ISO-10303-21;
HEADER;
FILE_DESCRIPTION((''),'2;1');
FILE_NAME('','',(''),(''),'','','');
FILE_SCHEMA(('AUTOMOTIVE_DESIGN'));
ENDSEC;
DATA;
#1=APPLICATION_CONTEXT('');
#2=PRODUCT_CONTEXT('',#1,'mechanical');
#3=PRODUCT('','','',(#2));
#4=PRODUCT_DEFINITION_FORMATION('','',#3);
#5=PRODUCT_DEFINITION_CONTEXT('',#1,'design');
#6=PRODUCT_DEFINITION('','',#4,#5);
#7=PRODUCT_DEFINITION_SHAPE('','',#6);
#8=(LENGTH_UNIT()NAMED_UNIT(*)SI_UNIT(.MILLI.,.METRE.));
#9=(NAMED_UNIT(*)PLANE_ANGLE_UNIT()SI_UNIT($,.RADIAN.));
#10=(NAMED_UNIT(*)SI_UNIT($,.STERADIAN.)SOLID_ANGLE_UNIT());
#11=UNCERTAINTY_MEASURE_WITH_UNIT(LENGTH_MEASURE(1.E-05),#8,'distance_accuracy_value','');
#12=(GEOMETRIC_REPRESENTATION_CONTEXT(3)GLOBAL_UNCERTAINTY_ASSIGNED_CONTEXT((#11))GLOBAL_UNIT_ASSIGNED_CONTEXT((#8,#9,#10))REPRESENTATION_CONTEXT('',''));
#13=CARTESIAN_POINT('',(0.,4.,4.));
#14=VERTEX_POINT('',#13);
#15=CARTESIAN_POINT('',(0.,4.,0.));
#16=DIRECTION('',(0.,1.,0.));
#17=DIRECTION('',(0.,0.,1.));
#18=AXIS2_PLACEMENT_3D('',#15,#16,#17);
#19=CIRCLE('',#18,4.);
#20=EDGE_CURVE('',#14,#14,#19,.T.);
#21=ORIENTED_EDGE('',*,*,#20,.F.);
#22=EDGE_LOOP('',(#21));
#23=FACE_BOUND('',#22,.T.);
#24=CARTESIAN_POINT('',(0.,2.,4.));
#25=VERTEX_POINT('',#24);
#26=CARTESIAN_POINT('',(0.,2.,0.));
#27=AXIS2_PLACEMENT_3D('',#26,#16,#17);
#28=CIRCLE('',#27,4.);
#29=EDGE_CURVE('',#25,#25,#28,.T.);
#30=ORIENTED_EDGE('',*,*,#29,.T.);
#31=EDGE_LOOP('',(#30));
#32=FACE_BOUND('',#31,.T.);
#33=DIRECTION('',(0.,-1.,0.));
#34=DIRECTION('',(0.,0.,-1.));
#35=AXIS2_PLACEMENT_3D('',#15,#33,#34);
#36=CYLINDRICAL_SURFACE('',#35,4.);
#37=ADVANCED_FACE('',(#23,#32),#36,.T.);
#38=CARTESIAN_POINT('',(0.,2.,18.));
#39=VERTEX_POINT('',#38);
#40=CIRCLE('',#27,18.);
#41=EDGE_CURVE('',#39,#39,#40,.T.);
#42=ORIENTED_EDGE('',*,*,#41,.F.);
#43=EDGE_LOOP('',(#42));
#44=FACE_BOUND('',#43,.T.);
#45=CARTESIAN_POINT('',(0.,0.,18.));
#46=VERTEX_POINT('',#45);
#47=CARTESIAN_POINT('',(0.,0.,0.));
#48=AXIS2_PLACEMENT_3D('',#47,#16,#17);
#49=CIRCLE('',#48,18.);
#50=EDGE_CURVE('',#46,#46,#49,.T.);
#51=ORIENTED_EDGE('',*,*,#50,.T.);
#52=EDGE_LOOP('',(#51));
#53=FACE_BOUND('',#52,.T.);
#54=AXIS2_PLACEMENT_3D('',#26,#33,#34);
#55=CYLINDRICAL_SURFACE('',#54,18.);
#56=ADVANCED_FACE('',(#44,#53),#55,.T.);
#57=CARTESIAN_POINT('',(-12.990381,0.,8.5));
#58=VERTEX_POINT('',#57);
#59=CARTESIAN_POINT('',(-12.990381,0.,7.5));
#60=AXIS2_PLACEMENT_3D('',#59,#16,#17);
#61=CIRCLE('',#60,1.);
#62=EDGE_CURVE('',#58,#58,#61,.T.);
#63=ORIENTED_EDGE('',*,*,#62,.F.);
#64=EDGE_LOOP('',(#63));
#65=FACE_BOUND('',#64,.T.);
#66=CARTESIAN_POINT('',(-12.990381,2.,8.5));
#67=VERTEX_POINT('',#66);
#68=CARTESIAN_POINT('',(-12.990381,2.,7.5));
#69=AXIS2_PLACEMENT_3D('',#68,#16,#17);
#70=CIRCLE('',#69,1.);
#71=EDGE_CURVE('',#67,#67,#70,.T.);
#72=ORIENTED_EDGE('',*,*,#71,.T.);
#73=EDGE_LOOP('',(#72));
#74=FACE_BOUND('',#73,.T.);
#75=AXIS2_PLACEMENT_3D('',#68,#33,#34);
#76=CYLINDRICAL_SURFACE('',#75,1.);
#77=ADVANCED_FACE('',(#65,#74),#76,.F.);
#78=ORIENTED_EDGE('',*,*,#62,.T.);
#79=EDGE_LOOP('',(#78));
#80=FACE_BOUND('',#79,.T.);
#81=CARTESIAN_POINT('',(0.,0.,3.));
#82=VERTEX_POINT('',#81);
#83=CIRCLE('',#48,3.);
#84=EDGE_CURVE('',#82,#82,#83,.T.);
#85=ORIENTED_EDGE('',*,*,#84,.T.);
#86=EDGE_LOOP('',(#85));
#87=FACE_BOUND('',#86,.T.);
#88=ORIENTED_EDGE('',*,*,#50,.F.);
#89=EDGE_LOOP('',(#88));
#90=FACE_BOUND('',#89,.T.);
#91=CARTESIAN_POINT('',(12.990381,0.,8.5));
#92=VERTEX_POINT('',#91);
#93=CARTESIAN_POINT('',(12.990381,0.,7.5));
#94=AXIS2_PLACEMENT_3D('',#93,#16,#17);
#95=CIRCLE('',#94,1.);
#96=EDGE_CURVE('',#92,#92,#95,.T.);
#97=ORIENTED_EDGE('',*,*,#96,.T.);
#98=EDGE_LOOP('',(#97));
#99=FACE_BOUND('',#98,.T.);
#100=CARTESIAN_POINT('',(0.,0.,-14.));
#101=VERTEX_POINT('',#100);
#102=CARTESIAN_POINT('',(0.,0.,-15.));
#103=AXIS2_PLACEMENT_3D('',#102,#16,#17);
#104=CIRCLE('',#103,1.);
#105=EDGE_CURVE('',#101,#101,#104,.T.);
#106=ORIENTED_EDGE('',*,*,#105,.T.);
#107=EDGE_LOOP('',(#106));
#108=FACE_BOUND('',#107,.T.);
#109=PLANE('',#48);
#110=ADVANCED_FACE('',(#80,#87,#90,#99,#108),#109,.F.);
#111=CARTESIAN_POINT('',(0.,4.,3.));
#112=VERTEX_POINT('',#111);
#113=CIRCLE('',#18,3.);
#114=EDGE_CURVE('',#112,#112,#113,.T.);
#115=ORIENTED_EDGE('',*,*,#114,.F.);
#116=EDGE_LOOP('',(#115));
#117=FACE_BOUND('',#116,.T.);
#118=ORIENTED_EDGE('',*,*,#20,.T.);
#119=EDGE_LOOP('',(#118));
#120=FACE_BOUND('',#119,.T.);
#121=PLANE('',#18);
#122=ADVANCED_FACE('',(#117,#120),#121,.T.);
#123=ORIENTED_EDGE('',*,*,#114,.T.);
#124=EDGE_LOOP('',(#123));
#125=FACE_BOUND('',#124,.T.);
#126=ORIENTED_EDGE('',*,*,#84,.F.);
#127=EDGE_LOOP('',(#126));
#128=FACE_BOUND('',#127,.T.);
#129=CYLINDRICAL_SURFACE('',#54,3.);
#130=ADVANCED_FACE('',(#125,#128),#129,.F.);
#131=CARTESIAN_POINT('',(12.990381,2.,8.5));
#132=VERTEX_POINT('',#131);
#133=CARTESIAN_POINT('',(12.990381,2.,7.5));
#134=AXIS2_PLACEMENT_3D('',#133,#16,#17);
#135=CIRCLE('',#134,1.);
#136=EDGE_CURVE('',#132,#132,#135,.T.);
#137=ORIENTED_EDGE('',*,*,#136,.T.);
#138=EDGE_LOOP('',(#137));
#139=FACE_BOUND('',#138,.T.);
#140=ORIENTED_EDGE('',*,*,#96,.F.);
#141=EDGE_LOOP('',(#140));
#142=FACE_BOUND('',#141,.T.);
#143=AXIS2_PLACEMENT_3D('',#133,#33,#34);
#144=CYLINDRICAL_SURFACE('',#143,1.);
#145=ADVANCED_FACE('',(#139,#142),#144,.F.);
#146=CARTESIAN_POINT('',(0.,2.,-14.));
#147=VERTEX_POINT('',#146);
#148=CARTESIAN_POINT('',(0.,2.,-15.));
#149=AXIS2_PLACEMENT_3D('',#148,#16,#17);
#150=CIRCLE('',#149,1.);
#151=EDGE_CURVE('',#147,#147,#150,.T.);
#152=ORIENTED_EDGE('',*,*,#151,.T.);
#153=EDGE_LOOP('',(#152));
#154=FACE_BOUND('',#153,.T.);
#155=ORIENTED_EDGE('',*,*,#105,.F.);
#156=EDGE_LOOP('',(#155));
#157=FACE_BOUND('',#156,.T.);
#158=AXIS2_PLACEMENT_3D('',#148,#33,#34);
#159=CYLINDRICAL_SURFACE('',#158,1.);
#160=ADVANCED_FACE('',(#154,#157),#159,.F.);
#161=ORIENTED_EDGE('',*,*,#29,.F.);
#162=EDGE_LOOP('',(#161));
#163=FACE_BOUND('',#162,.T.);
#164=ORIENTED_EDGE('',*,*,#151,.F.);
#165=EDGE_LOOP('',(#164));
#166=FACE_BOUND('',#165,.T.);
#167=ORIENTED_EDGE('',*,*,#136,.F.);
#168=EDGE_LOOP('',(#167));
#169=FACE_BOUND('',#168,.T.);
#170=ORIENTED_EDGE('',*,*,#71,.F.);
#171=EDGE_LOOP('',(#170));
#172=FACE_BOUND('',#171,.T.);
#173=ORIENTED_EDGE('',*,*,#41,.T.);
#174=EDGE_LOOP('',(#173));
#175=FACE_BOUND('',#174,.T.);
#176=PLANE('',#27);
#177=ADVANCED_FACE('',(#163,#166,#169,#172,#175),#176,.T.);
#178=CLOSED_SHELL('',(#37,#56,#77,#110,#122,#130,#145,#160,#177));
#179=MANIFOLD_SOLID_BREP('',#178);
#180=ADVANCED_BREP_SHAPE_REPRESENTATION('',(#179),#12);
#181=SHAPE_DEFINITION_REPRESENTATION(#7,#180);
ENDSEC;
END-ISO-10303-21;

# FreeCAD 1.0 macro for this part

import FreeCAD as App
import Part
import Sketcher
Q = App.Units.Quantity

doc = App.newDocument("Part")
body = doc.addObject("PartDesign::Body", "Body")

# Sketch on XZ plane
sketch1 = body.newObject("Sketcher::SketchObject", "Sketch")
sketch1.AttachmentSupport = (doc.getObject("XZ_Plane"), [""])
sketch1.MapMode = "FlatFace"
sketch1.addGeometry(Part.Circle(App.Vector(0, 0, 0), App.Vector(0, 0, 1), 18), False)
sketch1.addGeometry(Part.Circle(App.Vector(0, -15, 0), App.Vector(0, 0, 1), 1), False)
sketch1.addGeometry(Part.Circle(App.Vector(-13, 7.5, 0), App.Vector(0, 0, 1), 1), False)
sketch1.addGeometry(Part.Circle(App.Vector(0, 0, 0), App.Vector(0, 0, 1), 3), False)
sketch1.addGeometry(Part.Circle(App.Vector(13, 7.5, 0), App.Vector(0, 0, 1), 1), False)
sketch1.addConstraint(Sketcher.Constraint("Coincident", 0, 3, -1, 1))
sketch1.addConstraint(Sketcher.Constraint("Coincident", 3, 3, -1, 1))
sketch1.addConstraint(Sketcher.Constraint("Equal", 1, 2))
sketch1.addConstraint(Sketcher.Constraint("Equal", 2, 4))
sketch1.addConstraint(Sketcher.Constraint("Symmetric", 2, 3, 4, 3, -2))
sketch1.addConstraint(Sketcher.Constraint("PointOnObject", 1, 3, -2))
sketch1.addConstraint(Sketcher.Constraint("Diameter", 0, Q("36 mm")))
sketch1.addConstraint(Sketcher.Constraint("Diameter", 1, Q("2 mm")))
sketch1.addConstraint(Sketcher.Constraint("Diameter", 3, Q("6 mm")))
sketch1.addConstraint(Sketcher.Constraint("DistanceY", 1, 3, -1, 1, Q("15 mm")))
sketch1.addConstraint(Sketcher.Constraint("DistanceY", -1, 1, 2, 3, Q("7.5 mm")))
sketch1.addConstraint(Sketcher.Constraint("DistanceX", 2, 3, -1, 1, Q("12.990381 mm")))
pad1 = body.newObject("PartDesign::Pad", "Pad")
pad1.Profile = sketch1
pad1.Length = 2
pad1.Reversed = True

# Sketch on XZ plane
sketch2 = body.newObject("Sketcher::SketchObject", "Sketch001")
sketch2.AttachmentSupport = (doc.getObject("XZ_Plane"), [""])
sketch2.MapMode = "FlatFace"
sketch2.AttachmentOffset = App.Placement(App.Vector(0, 0, -2), App.Rotation())
sketch2.addGeometry(Part.Circle(App.Vector(0, 0, 0), App.Vector(0, 0, 1), 4), False)
sketch2.addGeometry(Part.Circle(App.Vector(0, 0, 0), App.Vector(0, 0, 1), 3), False)
sketch2.addConstraint(Sketcher.Constraint("Coincident", 0, 3, -1, 1))
sketch2.addConstraint(Sketcher.Constraint("Coincident", 1, 3, -1, 1))
sketch2.addConstraint(Sketcher.Constraint("Diameter", 0, Q("8 mm")))
sketch2.addConstraint(Sketcher.Constraint("Diameter", 1, Q("6 mm")))
pad2 = body.newObject("PartDesign::Pad", "Pad001")
pad2.Profile = sketch2
pad2.Length = 2
pad2.Reversed = True

doc.recompute()
